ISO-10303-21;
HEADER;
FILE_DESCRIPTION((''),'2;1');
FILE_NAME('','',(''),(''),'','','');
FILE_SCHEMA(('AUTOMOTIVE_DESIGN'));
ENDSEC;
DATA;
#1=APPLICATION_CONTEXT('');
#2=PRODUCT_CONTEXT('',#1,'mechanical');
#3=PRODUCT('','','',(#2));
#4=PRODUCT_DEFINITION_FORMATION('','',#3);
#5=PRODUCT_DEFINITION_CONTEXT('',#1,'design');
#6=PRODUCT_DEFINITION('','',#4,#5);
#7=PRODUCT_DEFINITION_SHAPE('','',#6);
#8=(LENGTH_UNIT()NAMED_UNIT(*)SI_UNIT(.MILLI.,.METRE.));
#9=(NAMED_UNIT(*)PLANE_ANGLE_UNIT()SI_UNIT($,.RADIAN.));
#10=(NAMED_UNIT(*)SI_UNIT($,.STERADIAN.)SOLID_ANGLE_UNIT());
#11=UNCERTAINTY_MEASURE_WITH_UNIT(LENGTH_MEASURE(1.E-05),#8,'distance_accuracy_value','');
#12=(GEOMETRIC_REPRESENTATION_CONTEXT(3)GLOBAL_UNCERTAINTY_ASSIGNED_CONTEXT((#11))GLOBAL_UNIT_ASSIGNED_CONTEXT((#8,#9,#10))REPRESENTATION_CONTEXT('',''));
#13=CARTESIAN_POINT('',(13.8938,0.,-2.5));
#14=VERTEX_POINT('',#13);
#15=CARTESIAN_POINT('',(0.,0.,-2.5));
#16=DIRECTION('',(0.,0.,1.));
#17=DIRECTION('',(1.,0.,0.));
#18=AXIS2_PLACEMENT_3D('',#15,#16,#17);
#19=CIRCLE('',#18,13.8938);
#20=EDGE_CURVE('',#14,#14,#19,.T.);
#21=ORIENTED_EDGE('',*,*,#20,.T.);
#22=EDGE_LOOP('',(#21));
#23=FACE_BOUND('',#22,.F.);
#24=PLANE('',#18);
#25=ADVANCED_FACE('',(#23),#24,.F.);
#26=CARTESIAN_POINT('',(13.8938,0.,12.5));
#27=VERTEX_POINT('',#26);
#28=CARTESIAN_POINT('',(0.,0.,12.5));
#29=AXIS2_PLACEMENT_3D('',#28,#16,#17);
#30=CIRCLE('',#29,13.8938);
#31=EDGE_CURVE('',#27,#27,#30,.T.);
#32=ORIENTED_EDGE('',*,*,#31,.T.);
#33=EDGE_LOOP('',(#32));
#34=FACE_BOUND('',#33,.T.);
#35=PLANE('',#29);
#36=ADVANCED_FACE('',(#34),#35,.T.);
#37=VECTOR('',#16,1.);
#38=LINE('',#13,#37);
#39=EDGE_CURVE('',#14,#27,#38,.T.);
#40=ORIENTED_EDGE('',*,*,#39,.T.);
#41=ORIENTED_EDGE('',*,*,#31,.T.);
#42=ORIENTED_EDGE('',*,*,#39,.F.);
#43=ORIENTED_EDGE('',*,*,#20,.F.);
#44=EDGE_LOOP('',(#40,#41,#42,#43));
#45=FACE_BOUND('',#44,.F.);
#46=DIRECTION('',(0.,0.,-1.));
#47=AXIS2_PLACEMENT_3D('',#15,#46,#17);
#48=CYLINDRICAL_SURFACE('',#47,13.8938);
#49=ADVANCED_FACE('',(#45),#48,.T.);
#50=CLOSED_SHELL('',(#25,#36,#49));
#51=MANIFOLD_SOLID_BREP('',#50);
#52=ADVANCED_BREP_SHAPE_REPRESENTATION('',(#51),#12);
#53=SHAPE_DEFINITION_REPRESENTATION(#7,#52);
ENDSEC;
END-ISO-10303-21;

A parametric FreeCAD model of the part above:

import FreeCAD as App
import Part
import Sketcher
from FreeCAD import Vector

doc = App.newDocument("Part")
body = doc.addObject("PartDesign::Body", "Body")

# Sketch on XY plane
sketch1 = body.newObject("Sketcher::SketchObject", "Sketch")
sketch1.AttachmentSupport = (doc.getObject("XY_Plane"), [""])
sketch1.MapMode = "FlatFace"
sketch1.AttachmentOffset = App.Placement(Vector(0, 0, -2.5), App.Rotation())
sketch1.addGeometry(Part.Circle(Vector(0, 0, 0), Vector(0, 0, 1), 14), False)
sketch1.addConstraint(Sketcher.Constraint("Coincident", 0, 3, -1, 1))
sketch1.addConstraint(Sketcher.Constraint("Diameter", 0, 27.7876))
pad1 = body.newObject("PartDesign::Pad", "Pad")
pad1.Profile = sketch1
pad1.Length = 15

doc.recompute()
